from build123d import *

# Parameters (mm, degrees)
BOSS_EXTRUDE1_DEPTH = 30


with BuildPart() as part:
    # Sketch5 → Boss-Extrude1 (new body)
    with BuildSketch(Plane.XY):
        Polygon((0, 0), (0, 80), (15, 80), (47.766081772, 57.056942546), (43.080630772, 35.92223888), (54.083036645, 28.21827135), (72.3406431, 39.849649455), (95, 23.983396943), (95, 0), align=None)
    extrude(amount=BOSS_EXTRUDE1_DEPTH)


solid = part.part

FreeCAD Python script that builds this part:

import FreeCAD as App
import Part
import Sketcher
from FreeCAD import Vector
Q = App.Units.Quantity

doc = App.newDocument("Part")
body = doc.addObject("PartDesign::Body", "Body")

# Sketch on XY plane
sketch1 = body.newObject("Sketcher::SketchObject", "Sketch")
sketch1.AttachmentSupport = (doc.getObject("XY_Plane"), [""])
sketch1.MapMode = "FlatFace"
sketch1.addGeometry([
    Part.LineSegment(Vector(0, 80, 0), Vector(0, 0, 0)),  # 0
    Part.LineSegment(Vector(0, 0, 0), Vector(95, 0, 0)),  # 1
    Part.LineSegment(Vector(95, 0, 0), Vector(95, 24, 0)),  # 2
    Part.LineSegment(Vector(95, 24, 0), Vector(72, 40, 0)),  # 3
    Part.LineSegment(Vector(72, 40, 0), Vector(54, 28, 0)),  # 4
    Part.LineSegment(Vector(54, 28, 0), Vector(43, 36, 0)),  # 5
    Part.LineSegment(Vector(43, 36, 0), Vector(48, 57, 0)),  # 6
    Part.LineSegment(Vector(48, 57, 0), Vector(15, 80, 0)),  # 7
    Part.LineSegment(Vector(15, 80, 0), Vector(0, 80, 0)),  # 8
], False)
sketch1.addConstraint([
    Sketcher.Constraint("Coincident", 0, 2, 1, 1),
    Sketcher.Constraint("Coincident", 1, 2, 2, 1),
    Sketcher.Constraint("Coincident", 2, 2, 3, 1),
    Sketcher.Constraint("Coincident", 3, 2, 4, 1),
    Sketcher.Constraint("Coincident", 4, 2, 5, 1),
    Sketcher.Constraint("Coincident", 5, 2, 6, 1),
    Sketcher.Constraint("Coincident", 6, 2, 7, 1),
    Sketcher.Constraint("Coincident", 7, 2, 8, 1),
    Sketcher.Constraint("Coincident", 8, 2, 0, 1),
    Sketcher.Constraint("Vertical", 0),
    Sketcher.Constraint("Horizontal", 1),
    Sketcher.Constraint("Vertical", 2),
    Sketcher.Constraint("Horizontal", 8),
    Sketcher.Constraint("Coincident", 0, 2, -1, 1),
    Sketcher.Constraint("Parallel", 3, 5),
    Sketcher.Constraint("Parallel", 5, 7),
    Sketcher.Constraint("Equal", 4, 6),
    Sketcher.Constraint("DistanceX", 1, 1, 1, 2, Q("95 mm")),
    Sketcher.Constraint("DistanceX", 8, 2, 8, 1, Q("15 mm")),
    Sketcher.Constraint("DistanceY", 0, 2, 0, 1, Q("80 mm")),
    Sketcher.Constraint("Angle", 3, Q("145 deg")),
    Sketcher.Constraint("Distance", 7, Q("40 mm")),
    Sketcher.Constraint("Angle", 4, Q("-147.5 deg")),
    Sketcher.Constraint("Angle", 6, Q("77.5 deg")),
    Sketcher.Constraint("DistanceY", -1, 1, 3, 2, Q("39.849649 mm")),
    Sketcher.Constraint("DistanceY", -1, 1, 4, 2, Q("28.218271 mm")),
])
pad1 = body.newObject("PartDesign::Pad", "Pad")
pad1.Profile = sketch1
pad1.Length = 30

doc.recompute()
